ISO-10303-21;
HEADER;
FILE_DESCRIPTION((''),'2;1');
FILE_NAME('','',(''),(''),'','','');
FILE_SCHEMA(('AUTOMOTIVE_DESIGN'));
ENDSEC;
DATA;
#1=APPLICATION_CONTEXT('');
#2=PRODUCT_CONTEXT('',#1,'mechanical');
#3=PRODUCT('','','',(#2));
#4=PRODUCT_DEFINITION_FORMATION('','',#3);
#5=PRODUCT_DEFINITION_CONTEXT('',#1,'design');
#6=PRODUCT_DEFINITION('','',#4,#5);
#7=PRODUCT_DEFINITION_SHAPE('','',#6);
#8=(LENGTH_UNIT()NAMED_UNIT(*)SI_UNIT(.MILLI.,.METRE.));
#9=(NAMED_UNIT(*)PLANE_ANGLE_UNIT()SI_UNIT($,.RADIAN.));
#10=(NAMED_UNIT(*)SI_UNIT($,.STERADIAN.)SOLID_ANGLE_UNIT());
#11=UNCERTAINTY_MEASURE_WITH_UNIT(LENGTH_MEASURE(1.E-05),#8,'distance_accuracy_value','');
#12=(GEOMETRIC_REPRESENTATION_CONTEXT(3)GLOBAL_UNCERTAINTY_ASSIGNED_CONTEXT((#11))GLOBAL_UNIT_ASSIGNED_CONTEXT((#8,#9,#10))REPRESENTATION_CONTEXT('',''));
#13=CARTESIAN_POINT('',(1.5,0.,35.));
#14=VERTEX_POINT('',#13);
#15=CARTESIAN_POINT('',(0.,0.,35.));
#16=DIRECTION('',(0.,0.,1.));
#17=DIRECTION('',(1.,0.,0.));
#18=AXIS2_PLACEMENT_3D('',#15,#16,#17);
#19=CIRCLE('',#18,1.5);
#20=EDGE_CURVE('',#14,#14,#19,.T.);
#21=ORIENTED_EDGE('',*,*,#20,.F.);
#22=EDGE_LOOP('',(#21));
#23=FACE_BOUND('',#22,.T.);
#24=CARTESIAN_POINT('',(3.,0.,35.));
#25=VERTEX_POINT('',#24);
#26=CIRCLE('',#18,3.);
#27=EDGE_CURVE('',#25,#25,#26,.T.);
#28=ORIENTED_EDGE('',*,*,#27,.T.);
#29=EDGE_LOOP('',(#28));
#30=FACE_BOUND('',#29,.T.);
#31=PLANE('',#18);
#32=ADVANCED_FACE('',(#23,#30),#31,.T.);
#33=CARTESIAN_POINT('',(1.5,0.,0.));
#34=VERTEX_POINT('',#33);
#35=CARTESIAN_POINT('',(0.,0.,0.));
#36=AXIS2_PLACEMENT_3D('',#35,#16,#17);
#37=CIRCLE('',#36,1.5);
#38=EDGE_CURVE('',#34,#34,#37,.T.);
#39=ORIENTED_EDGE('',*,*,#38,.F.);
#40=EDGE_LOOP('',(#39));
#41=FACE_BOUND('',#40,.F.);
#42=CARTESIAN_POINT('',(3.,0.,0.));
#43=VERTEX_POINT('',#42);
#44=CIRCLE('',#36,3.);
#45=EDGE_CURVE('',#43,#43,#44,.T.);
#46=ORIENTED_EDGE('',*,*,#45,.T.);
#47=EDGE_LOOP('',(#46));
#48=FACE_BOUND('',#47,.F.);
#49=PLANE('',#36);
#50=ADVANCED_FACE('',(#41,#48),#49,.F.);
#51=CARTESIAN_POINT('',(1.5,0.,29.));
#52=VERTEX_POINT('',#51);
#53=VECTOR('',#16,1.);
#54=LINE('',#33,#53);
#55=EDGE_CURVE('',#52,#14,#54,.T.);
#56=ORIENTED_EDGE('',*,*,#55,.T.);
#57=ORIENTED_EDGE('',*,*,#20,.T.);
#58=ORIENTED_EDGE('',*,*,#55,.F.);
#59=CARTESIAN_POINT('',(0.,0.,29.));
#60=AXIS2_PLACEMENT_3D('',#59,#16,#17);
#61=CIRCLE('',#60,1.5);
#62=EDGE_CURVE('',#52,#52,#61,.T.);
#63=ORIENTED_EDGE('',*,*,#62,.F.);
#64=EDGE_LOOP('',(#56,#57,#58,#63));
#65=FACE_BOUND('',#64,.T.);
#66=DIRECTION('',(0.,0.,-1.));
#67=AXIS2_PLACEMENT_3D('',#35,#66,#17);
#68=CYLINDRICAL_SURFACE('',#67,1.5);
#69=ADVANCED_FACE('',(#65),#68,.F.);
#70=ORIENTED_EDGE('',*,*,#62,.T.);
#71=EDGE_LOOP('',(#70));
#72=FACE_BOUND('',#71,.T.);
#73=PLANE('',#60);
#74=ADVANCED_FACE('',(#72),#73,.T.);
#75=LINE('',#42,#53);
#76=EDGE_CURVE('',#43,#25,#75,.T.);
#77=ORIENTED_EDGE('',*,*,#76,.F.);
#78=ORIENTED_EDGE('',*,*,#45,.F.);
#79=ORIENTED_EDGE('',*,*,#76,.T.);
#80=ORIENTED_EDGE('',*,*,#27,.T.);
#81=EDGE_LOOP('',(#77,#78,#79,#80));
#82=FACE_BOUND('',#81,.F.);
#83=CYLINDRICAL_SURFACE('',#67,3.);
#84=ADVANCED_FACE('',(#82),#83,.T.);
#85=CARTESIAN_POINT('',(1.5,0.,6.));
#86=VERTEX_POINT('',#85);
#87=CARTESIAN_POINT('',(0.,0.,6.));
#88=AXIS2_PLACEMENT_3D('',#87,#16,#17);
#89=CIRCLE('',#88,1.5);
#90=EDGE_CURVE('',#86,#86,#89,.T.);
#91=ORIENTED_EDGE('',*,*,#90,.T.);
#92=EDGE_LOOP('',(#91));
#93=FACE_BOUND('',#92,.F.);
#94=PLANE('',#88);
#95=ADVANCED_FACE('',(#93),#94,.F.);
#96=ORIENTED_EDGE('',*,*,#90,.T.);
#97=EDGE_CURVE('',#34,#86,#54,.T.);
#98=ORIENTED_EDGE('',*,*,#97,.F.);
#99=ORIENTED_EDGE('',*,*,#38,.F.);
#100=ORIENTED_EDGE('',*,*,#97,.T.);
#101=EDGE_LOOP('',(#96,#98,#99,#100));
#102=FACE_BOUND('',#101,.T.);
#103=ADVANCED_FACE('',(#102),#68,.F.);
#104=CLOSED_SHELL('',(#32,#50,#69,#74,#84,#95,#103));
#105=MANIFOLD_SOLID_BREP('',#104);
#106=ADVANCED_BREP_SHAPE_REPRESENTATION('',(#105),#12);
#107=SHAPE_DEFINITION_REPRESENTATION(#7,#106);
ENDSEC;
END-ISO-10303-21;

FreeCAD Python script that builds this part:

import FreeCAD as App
import Part
import Sketcher

V = App.Vector

doc = App.newDocument("Part")
body = doc.addObject("PartDesign::Body", "Body")

# Sketch on XY plane
sketch1 = body.newObject("Sketcher::SketchObject", "Sketch")
sketch1.AttachmentSupport = (doc.getObject("XY_Plane"), [""])
sketch1.MapMode = "FlatFace"
sketch1.addGeometry([
    Part.Circle(V(0, 0, 0), V(0, 0, 1), 3),
    Part.Circle(V(0, 0, 0), V(0, 0, 1), 1.5),
], False)
sketch1.addConstraint([
    Sketcher.Constraint("Coincident", 0, 3, -1, 1),
    Sketcher.Constraint("Coincident", 1, 3, -1, 1),
    Sketcher.Constraint("Diameter", 0, 6.0),
    Sketcher.Constraint("Diameter", 1, 3.0),
])
pad1 = body.newObject("PartDesign::Pad", "Pad")
pad1.Profile = sketch1
pad1.Length = 35

# Sketch on XY plane
sketch2 = body.newObject("Sketcher::SketchObject", "Sketch001")
sketch2.AttachmentSupport = (doc.getObject("XY_Plane"), [""])
sketch2.MapMode = "FlatFace"
sketch2.AttachmentOffset = App.Placement(V(0, 0, 29), App.Rotation())
sketch2.addGeometry(Part.Circle(V(0, 0, 0), V(0, 0, 1), 1.5), False)
sketch2.addConstraint([
    Sketcher.Constraint("Coincident", 0, 3, -1, 1),
    Sketcher.Constraint("Diameter", 0, 3.0),
])
pad2 = body.newObject("PartDesign::Pad", "Pad001")
pad2.Profile = sketch2
pad2.Length = 23
pad2.Reversed = True

doc.recompute()
